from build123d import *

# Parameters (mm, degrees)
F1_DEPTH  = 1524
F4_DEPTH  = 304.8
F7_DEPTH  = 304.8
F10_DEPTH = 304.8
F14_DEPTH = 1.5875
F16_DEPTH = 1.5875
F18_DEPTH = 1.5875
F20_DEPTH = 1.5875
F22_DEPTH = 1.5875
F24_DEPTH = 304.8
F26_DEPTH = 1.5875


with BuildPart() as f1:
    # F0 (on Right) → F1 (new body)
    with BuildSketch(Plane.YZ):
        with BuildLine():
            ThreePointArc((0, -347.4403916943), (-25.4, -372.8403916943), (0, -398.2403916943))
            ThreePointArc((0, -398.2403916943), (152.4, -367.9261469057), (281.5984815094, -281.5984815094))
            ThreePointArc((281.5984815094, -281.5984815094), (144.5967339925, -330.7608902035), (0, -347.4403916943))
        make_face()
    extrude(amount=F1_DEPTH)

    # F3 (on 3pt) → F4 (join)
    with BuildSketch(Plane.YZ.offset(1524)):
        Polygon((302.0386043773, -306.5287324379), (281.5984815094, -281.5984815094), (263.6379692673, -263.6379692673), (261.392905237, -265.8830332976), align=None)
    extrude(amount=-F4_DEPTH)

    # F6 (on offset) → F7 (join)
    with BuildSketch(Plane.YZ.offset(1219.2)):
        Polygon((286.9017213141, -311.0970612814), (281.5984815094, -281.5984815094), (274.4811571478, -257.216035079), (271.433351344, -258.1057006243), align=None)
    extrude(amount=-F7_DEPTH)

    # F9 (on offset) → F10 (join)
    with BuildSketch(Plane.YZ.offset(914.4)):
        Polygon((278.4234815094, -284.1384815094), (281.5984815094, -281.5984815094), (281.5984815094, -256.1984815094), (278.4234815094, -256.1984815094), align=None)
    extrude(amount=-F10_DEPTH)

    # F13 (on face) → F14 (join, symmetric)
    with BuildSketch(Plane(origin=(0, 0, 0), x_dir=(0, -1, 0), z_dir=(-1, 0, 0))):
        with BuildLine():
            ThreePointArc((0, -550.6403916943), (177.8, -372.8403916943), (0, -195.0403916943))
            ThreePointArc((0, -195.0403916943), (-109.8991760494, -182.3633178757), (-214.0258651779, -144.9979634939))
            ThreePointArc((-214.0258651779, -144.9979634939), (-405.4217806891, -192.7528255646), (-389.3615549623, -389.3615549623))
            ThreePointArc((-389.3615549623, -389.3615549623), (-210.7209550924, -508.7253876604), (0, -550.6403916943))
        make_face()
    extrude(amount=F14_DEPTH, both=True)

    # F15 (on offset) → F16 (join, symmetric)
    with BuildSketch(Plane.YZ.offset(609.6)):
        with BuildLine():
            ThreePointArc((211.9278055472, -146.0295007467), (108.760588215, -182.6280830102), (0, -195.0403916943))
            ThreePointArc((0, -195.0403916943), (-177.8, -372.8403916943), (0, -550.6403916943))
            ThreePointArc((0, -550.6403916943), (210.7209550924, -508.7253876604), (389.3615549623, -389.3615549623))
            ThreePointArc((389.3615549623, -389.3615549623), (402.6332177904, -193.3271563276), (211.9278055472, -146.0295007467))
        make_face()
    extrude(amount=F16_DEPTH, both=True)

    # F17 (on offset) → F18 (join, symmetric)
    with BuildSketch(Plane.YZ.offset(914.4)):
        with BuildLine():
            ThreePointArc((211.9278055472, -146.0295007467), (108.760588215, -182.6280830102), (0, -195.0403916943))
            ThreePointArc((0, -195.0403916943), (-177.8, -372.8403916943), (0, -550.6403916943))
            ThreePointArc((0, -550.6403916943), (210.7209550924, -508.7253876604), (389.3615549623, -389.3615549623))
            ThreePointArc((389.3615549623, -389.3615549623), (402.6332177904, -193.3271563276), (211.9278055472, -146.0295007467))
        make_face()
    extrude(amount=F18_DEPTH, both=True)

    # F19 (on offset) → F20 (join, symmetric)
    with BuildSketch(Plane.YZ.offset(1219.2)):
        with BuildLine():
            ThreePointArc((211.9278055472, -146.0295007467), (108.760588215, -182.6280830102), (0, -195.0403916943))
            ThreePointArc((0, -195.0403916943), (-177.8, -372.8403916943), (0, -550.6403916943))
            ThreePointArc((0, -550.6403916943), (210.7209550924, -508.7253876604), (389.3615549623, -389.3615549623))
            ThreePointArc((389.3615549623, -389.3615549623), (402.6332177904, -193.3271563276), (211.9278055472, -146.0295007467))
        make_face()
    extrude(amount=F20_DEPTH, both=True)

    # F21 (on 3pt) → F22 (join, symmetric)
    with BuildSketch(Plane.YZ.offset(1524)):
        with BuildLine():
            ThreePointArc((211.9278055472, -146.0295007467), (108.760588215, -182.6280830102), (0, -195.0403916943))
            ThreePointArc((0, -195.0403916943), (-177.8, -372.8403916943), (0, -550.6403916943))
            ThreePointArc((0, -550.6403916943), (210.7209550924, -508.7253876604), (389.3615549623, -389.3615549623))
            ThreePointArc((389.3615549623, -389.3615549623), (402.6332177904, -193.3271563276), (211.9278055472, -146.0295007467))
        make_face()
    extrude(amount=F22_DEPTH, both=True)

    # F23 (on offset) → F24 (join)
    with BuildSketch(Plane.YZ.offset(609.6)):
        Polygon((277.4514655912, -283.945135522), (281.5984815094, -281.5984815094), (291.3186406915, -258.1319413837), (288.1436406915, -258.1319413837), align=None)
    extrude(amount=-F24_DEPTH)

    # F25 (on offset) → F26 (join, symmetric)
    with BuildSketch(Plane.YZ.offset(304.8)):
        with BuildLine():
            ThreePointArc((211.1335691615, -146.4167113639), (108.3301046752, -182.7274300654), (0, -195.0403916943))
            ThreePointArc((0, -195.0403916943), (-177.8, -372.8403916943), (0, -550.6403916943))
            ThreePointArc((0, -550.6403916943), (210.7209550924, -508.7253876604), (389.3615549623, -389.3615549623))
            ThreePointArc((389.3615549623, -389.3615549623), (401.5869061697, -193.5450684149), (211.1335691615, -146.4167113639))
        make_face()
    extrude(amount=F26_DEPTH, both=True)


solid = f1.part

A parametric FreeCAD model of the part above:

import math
import FreeCAD as App
import Part
import Sketcher

V = App.Vector
Q = App.Units.Quantity

doc = App.newDocument("Part")
params = doc.addObject("Spreadsheet::Sheet", "Params")
for row, (alias, value) in enumerate([
    ("sketch1_radius", "1 in"),
    ("pad1_length", "60 in"),
    ("sketch2_length", "1 in"),
    ("sketch2_length2", "0.125 in"),
    ("pad2_length", "12 in"),
    ("sketch3_length", "1 in"),
    ("sketch3_length2", "0.125 in"),
    ("pad3_length", "12 in"),
    ("sketch4_height", "1 in"),
    ("sketch4_height2", "1.1 in"),
    ("sketch4_width", "0.125 in"),
    ("pad4_length", "12 in"),
    ("sketch5_radius", "7 in"),
    ("sketch5_radius2", "6 in"),
    ("pad5_length", "0.125 in"),
    ("sketch6_radius", "7 in"),
    ("pad6_length", "0.125 in"),
    ("sketch7_radius", "7 in"),
    ("pad7_length", "0.125 in"),
    ("sketch8_radius", "7 in"),
    ("pad8_length", "0.125 in"),
    ("sketch9_radius", "7 in"),
    ("pad9_length", "0.125 in"),
    ("sketch10_length", "1 in"),
    ("sketch10_length2", "1.1 in"),
    ("sketch10_width", "0.125 in"),
    ("pad10_length", "12 in"),
    ("sketch11_radius", "7 in"),
    ("pad11_length", "0.125 in"),
], start=1):
    params.set(f"A{row}", alias)
    params.set(f"B{row}", "=" + value)
    params.setAlias(f"B{row}", alias)

body = doc.addObject("PartDesign::Body", "Body")

sketch1 = body.newObject("Sketcher::SketchObject", "Sketch")
sketch1.AttachmentSupport = (doc.getObject("YZ_Plane"), [""])
sketch1.MapMode = "FlatFace"
sketch1.addGeometry([
    Part.ArcOfCircle(Part.Circle(V(0, -373, 0), V(0, 0, 1), 25), math.radians(90), math.radians(270)),
    Part.ArcOfCircle(Part.Circle(V(0, 0, 0), V(0, 0, 1), 398), math.radians(-90), math.radians(-45)),
    Part.ArcOfCircle(Part.Circle(V(0, 288, 0), V(0, 0, 1), 635), math.radians(-90), math.radians(-64)),
], False)
sketch1.addConstraint([
    Sketcher.Constraint("Tangent", 0, 2, 1, 1),
    Sketcher.Constraint("Coincident", 1, 2, 2, 2),
    Sketcher.Constraint("Tangent", 2, 1, 0, 1),
    Sketcher.Constraint("Coincident", 1, 3, -1, 1),
    Sketcher.Constraint("PointOnObject", 0, 3, -2),
    Sketcher.Constraint("PointOnObject", 2, 3, -2),
    Sketcher.Constraint("Radius", 0, Q("1 in")),
    Sketcher.Constraint("Radius", 1, Q("398.240392 mm")),
    Sketcher.Constraint("Radius", 2, Q("635.103551 mm")),
])
sketch1.setExpression("Constraints[6]", "Params.sketch1_radius")
pad1 = body.newObject("PartDesign::Pad", "Pad")
pad1.Profile = sketch1
pad1.setExpression("Length", "Params.pad1_length")

sketch2 = body.newObject("Sketcher::SketchObject", "Sketch001")
sketch2.AttachmentSupport = (doc.getObject("YZ_Plane"), [""])
sketch2.MapMode = "FlatFace"
sketch2.AttachmentOffset = App.Placement(V(0, 0, 60 * 25.4), App.Rotation())
sketch2.addGeometry([
    Part.LineSegment(V(302, -306.5, 0), V(281.6, -281.6, 0)),
    Part.LineSegment(V(281.6, -281.6, 0), V(263.6, -263.6, 0)),
    Part.LineSegment(V(263.6, -263.6, 0), V(261.4, -265.9, 0)),
    Part.LineSegment(V(261.4, -265.9, 0), V(302, -306.5, 0)),
], False)
sketch2.addConstraint([
    Sketcher.Constraint("Coincident", 0, 2, 1, 1),
    Sketcher.Constraint("Coincident", 1, 2, 2, 1),
    Sketcher.Constraint("Coincident", 2, 2, 3, 1),
    Sketcher.Constraint("Coincident", 3, 2, 0, 1),
    Sketcher.Constraint("Perpendicular", 1, 2),
    Sketcher.Constraint("Perpendicular", 2, 3),
    Sketcher.Constraint("Distance", 1, Q("1 in")),
    Sketcher.Constraint("Angle", 1, Q("135 deg")),
    Sketcher.Constraint("Distance", 2, Q("0.125 in")),
    Sketcher.Constraint("Distance", 3, Q("57.481699 mm")),
    Sketcher.Constraint("DistanceX", -1, 1, 0, 2, Q("281.598482 mm")),
    Sketcher.Constraint("DistanceY", 0, 2, -1, 1, Q("281.598482 mm")),
])
sketch2.setExpression("Constraints[6]", "Params.sketch2_length")
sketch2.setExpression("Constraints[8]", "Params.sketch2_length2")
pad2 = body.newObject("PartDesign::Pad", "Pad001")
pad2.Profile = sketch2
pad2.setExpression("Length", "Params.pad2_length")
pad2.Reversed = True

sketch3 = body.newObject("Sketcher::SketchObject", "Sketch002")
sketch3.AttachmentSupport = (doc.getObject("YZ_Plane"), [""])
sketch3.MapMode = "FlatFace"
sketch3.AttachmentOffset = App.Placement(V(0, 0, 48 * 25.4), App.Rotation())
sketch3.addGeometry([
    Part.LineSegment(V(286.9, -311.1, 0), V(281.6, -281.6, 0)),
    Part.LineSegment(V(281.6, -281.6, 0), V(274.5, -257.2, 0)),
    Part.LineSegment(V(274.5, -257.2, 0), V(271.4, -258.1, 0)),
    Part.LineSegment(V(271.4, -258.1, 0), V(286.9, -311.1, 0)),
], False)
sketch3.addConstraint([
    Sketcher.Constraint("Coincident", 0, 2, 1, 1),
    Sketcher.Constraint("Coincident", 1, 2, 2, 1),
    Sketcher.Constraint("Coincident", 2, 2, 3, 1),
    Sketcher.Constraint("Coincident", 3, 2, 0, 1),
    Sketcher.Constraint("Perpendicular", 1, 2),
    Sketcher.Constraint("Perpendicular", 2, 3),
    Sketcher.Constraint("Distance", 1, Q("1 in")),
    Sketcher.Constraint("Distance", 2, Q("0.125 in")),
    Sketcher.Constraint("DistanceY", 2, 2, -1, 1, Q("258.105701 mm")),
    Sketcher.Constraint("Distance", 3, Q("55.202851 mm")),
    Sketcher.Constraint("DistanceX", -1, 1, 0, 2, Q("281.598482 mm")),
    Sketcher.Constraint("DistanceY", 0, 2, -1, 1, Q("281.598482 mm")),
])
sketch3.setExpression("Constraints[6]", "Params.sketch3_length")
sketch3.setExpression("Constraints[7]", "Params.sketch3_length2")
pad3 = body.newObject("PartDesign::Pad", "Pad002")
pad3.Profile = sketch3
pad3.setExpression("Length", "Params.pad3_length")
pad3.Reversed = True

sketch4 = body.newObject("Sketcher::SketchObject", "Sketch003")
sketch4.AttachmentSupport = (doc.getObject("YZ_Plane"), [""])
sketch4.MapMode = "FlatFace"
sketch4.AttachmentOffset = App.Placement(V(0, 0, 36 * 25.4), App.Rotation())
sketch4.addGeometry([
    Part.LineSegment(V(278.4, -284.1, 0), V(281.6, -281.6, 0)),
    Part.LineSegment(V(281.6, -281.6, 0), V(281.6, -256.2, 0)),
    Part.LineSegment(V(281.6, -256.2, 0), V(278.4, -256.2, 0)),
    Part.LineSegment(V(278.4, -256.2, 0), V(278.4, -284.1, 0)),
], False)
sketch4.addConstraint([
    Sketcher.Constraint("Coincident", 0, 2, 1, 1),
    Sketcher.Constraint("Coincident", 1, 2, 2, 1),
    Sketcher.Constraint("Coincident", 2, 2, 3, 1),
    Sketcher.Constraint("Coincident", 3, 2, 0, 1),
    Sketcher.Constraint("Vertical", 1),
    Sketcher.Constraint("Horizontal", 2),
    Sketcher.Constraint("Vertical", 3),
    Sketcher.Constraint("DistanceY", 1, 1, 1, 2, Q("1 in")),
    Sketcher.Constraint("DistanceY", 3, 2, 3, 1, Q("1.1 in")),
    Sketcher.Constraint("DistanceX", 2, 2, 2, 1, Q("0.125 in")),
    Sketcher.Constraint("DistanceX", -1, 1, 0, 2, Q("281.598482 mm")),
    Sketcher.Constraint("DistanceY", 0, 2, -1, 1, Q("281.598482 mm")),
])
sketch4.setExpression("Constraints[7]", "Params.sketch4_height")
sketch4.setExpression("Constraints[8]", "Params.sketch4_height2")
sketch4.setExpression("Constraints[9]", "Params.sketch4_width")
pad4 = body.newObject("PartDesign::Pad", "Pad003")
pad4.Profile = sketch4
pad4.setExpression("Length", "Params.pad4_length")
pad4.Reversed = True

sketch5 = body.newObject("Sketcher::SketchObject", "Sketch004")
sketch5.AttachmentSupport = (doc.getObject("YZ_Plane"), [""])
sketch5.MapMode = "FlatFace"
sketch5.addGeometry([
    Part.ArcOfCircle(Part.Circle(V(0, -373, 0), V(0, 0, 1), 178), math.radians(90), math.radians(270)),
    Part.ArcOfCircle(Part.Circle(V(0, 288, 0), V(0, 0, 1), 483), math.radians(-90), math.radians(-64)),
    Part.ArcOfCircle(Part.Circle(V(282, -282, 0), V(0, 0, 1), 152), math.radians(-45), math.radians(116)),
    Part.ArcOfCircle(Part.Circle(V(0, 0, 0), V(0, 0, 1), 551), math.radians(-90), math.radians(-45)),
], False)
sketch5.addConstraint([
    Sketcher.Constraint("Tangent", 0, 1, 1, 1),
    Sketcher.Constraint("Tangent", 1, 2, 2, 2),
    Sketcher.Constraint("Tangent", 2, 1, 3, 2),
    Sketcher.Constraint("Tangent", 3, 1, 0, 2),
    Sketcher.Constraint("Coincident", 3, 3, -1, 1),
    Sketcher.Constraint("PointOnObject", 0, 3, -2),
    Sketcher.Constraint("PointOnObject", 1, 3, -2),
    Sketcher.Constraint("Radius", 0, Q("7 in")),
    Sketcher.Constraint("Radius", 2, Q("6 in")),
    Sketcher.Constraint("Radius", 1, Q("482.703551 mm")),
    Sketcher.Constraint("Radius", 3, Q("550.640392 mm")),
])
sketch5.setExpression("Constraints[7]", "Params.sketch5_radius")
sketch5.setExpression("Constraints[8]", "Params.sketch5_radius2")
pad5 = body.newObject("PartDesign::Pad", "Pad004")
pad5.Profile = sketch5
pad5.setExpression("Length", "Params.pad5_length")
pad5.Midplane = True

sketch6 = body.newObject("Sketcher::SketchObject", "Sketch005")
sketch6.AttachmentSupport = (doc.getObject("YZ_Plane"), [""])
sketch6.MapMode = "FlatFace"
sketch6.AttachmentOffset = App.Placement(V(0, 0, 24 * 25.4), App.Rotation())
sketch6.addGeometry([
    Part.ArcOfCircle(Part.Circle(V(0, 288, 0), V(0, 0, 1), 483), math.radians(-90), math.radians(-64)),
    Part.ArcOfCircle(Part.Circle(V(0, -373, 0), V(0, 0, 1), 178), math.radians(90), math.radians(270)),
    Part.ArcOfCircle(Part.Circle(V(0, 0, 0), V(0, 0, 1), 551), math.radians(-90), math.radians(-45)),
    Part.ArcOfCircle(Part.Circle(V(279, -283, 0), V(0, 0, 1), 153), math.radians(-44), math.radians(116)),
], False)
sketch6.addConstraint([
    Sketcher.Constraint("Tangent", 0, 1, 1, 1),
    Sketcher.Constraint("Tangent", 1, 2, 2, 1),
    Sketcher.Constraint("Coincident", 2, 2, 3, 1),
    Sketcher.Constraint("Tangent", 3, 2, 0, 2),
    Sketcher.Constraint("Coincident", 2, 3, -1, 1),
    Sketcher.Constraint("PointOnObject", 0, 3, -2),
    Sketcher.Constraint("PointOnObject", 1, 3, -2),
    Sketcher.Constraint("Radius", 1, Q("7 in")),
    Sketcher.Constraint("Radius", 0, Q("482.703551 mm")),
    Sketcher.Constraint("Radius", 2, Q("550.640392 mm")),
    Sketcher.Constraint("Radius", 3, Q("152.92592 mm")),
    Sketcher.Constraint("DistanceY", 3, 2, -1, 1, Q("146.029501 mm")),
])
sketch6.setExpression("Constraints[7]", "Params.sketch6_radius")
pad6 = body.newObject("PartDesign::Pad", "Pad005")
pad6.Profile = sketch6
pad6.setExpression("Length", "Params.pad6_length")
pad6.Midplane = True

sketch7 = body.newObject("Sketcher::SketchObject", "Sketch006")
sketch7.AttachmentSupport = (doc.getObject("YZ_Plane"), [""])
sketch7.MapMode = "FlatFace"
sketch7.AttachmentOffset = App.Placement(V(0, 0, 36 * 25.4), App.Rotation())
sketch7.addGeometry([
    Part.ArcOfCircle(Part.Circle(V(0, 288, 0), V(0, 0, 1), 483), math.radians(-90), math.radians(-64)),
    Part.ArcOfCircle(Part.Circle(V(0, -373, 0), V(0, 0, 1), 178), math.radians(90), math.radians(270)),
    Part.ArcOfCircle(Part.Circle(V(0, 0, 0), V(0, 0, 1), 551), math.radians(-90), math.radians(-45)),
    Part.ArcOfCircle(Part.Circle(V(279, -283, 0), V(0, 0, 1), 153), math.radians(-44), math.radians(116)),
], False)
sketch7.addConstraint([
    Sketcher.Constraint("Tangent", 0, 1, 1, 1),
    Sketcher.Constraint("Tangent", 1, 2, 2, 1),
    Sketcher.Constraint("Coincident", 2, 2, 3, 1),
    Sketcher.Constraint("Tangent", 3, 2, 0, 2),
    Sketcher.Constraint("Coincident", 2, 3, -1, 1),
    Sketcher.Constraint("PointOnObject", 0, 3, -2),
    Sketcher.Constraint("PointOnObject", 1, 3, -2),
    Sketcher.Constraint("Radius", 1, Q("7 in")),
    Sketcher.Constraint("Radius", 0, Q("482.703551 mm")),
    Sketcher.Constraint("Radius", 2, Q("550.640392 mm")),
    Sketcher.Constraint("Radius", 3, Q("152.92592 mm")),
    Sketcher.Constraint("DistanceY", 3, 2, -1, 1, Q("146.029501 mm")),
])
sketch7.setExpression("Constraints[7]", "Params.sketch7_radius")
pad7 = body.newObject("PartDesign::Pad", "Pad006")
pad7.Profile = sketch7
pad7.setExpression("Length", "Params.pad7_length")
pad7.Midplane = True

sketch8 = body.newObject("Sketcher::SketchObject", "Sketch007")
sketch8.AttachmentSupport = (doc.getObject("YZ_Plane"), [""])
sketch8.MapMode = "FlatFace"
sketch8.AttachmentOffset = App.Placement(V(0, 0, 48 * 25.4), App.Rotation())
sketch8.addGeometry([
    Part.ArcOfCircle(Part.Circle(V(0, 288, 0), V(0, 0, 1), 483), math.radians(-90), math.radians(-64)),
    Part.ArcOfCircle(Part.Circle(V(0, -373, 0), V(0, 0, 1), 178), math.radians(90), math.radians(270)),
    Part.ArcOfCircle(Part.Circle(V(0, 0, 0), V(0, 0, 1), 551), math.radians(-90), math.radians(-45)),
    Part.ArcOfCircle(Part.Circle(V(279, -283, 0), V(0, 0, 1), 153), math.radians(-44), math.radians(116)),
], False)
sketch8.addConstraint([
    Sketcher.Constraint("Tangent", 0, 1, 1, 1),
    Sketcher.Constraint("Tangent", 1, 2, 2, 1),
    Sketcher.Constraint("Coincident", 2, 2, 3, 1),
    Sketcher.Constraint("Tangent", 3, 2, 0, 2),
    Sketcher.Constraint("Coincident", 2, 3, -1, 1),
    Sketcher.Constraint("PointOnObject", 0, 3, -2),
    Sketcher.Constraint("PointOnObject", 1, 3, -2),
    Sketcher.Constraint("Radius", 1, Q("7 in")),
    Sketcher.Constraint("Radius", 0, Q("482.703551 mm")),
    Sketcher.Constraint("Radius", 2, Q("550.640392 mm")),
    Sketcher.Constraint("Radius", 3, Q("152.92592 mm")),
    Sketcher.Constraint("DistanceY", 3, 2, -1, 1, Q("146.029501 mm")),
])
sketch8.setExpression("Constraints[7]", "Params.sketch8_radius")
pad8 = body.newObject("PartDesign::Pad", "Pad007")
pad8.Profile = sketch8
pad8.setExpression("Length", "Params.pad8_length")
pad8.Midplane = True

sketch9 = body.newObject("Sketcher::SketchObject", "Sketch008")
sketch9.AttachmentSupport = (doc.getObject("YZ_Plane"), [""])
sketch9.MapMode = "FlatFace"
sketch9.AttachmentOffset = App.Placement(V(0, 0, 60 * 25.4), App.Rotation())
sketch9.addGeometry([
    Part.ArcOfCircle(Part.Circle(V(0, 288, 0), V(0, 0, 1), 483), math.radians(-90), math.radians(-64)),
    Part.ArcOfCircle(Part.Circle(V(0, -373, 0), V(0, 0, 1), 178), math.radians(90), math.radians(270)),
    Part.ArcOfCircle(Part.Circle(V(0, 0, 0), V(0, 0, 1), 551), math.radians(-90), math.radians(-45)),
    Part.ArcOfCircle(Part.Circle(V(279, -283, 0), V(0, 0, 1), 153), math.radians(-44), math.radians(116)),
], False)
sketch9.addConstraint([
    Sketcher.Constraint("Tangent", 0, 1, 1, 1),
    Sketcher.Constraint("Tangent", 1, 2, 2, 1),
    Sketcher.Constraint("Coincident", 2, 2, 3, 1),
    Sketcher.Constraint("Tangent", 3, 2, 0, 2),
    Sketcher.Constraint("Coincident", 2, 3, -1, 1),
    Sketcher.Constraint("PointOnObject", 0, 3, -2),
    Sketcher.Constraint("PointOnObject", 1, 3, -2),
    Sketcher.Constraint("Radius", 1, Q("7 in")),
    Sketcher.Constraint("Radius", 0, Q("482.703551 mm")),
    Sketcher.Constraint("Radius", 2, Q("550.640392 mm")),
    Sketcher.Constraint("Radius", 3, Q("152.92592 mm")),
    Sketcher.Constraint("DistanceY", 3, 2, -1, 1, Q("146.029501 mm")),
])
sketch9.setExpression("Constraints[7]", "Params.sketch9_radius")
pad9 = body.newObject("PartDesign::Pad", "Pad008")
pad9.Profile = sketch9
pad9.setExpression("Length", "Params.pad9_length")
pad9.Midplane = True

sketch10 = body.newObject("Sketcher::SketchObject", "Sketch009")
sketch10.AttachmentSupport = (doc.getObject("YZ_Plane"), [""])
sketch10.MapMode = "FlatFace"
sketch10.AttachmentOffset = App.Placement(V(0, 0, 24 * 25.4), App.Rotation())
sketch10.addGeometry([
    Part.LineSegment(V(277.5, -283.9, 0), V(281.6, -281.6, 0)),
    Part.LineSegment(V(281.6, -281.6, 0), V(291.3, -258.1, 0)),
    Part.LineSegment(V(291.3, -258.1, 0), V(288.1, -258.1, 0)),
    Part.LineSegment(V(288.1, -258.1, 0), V(277.5, -283.9, 0)),
], False)
sketch10.addConstraint([
    Sketcher.Constraint("Coincident", 0, 2, 1, 1),
    Sketcher.Constraint("Coincident", 1, 2, 2, 1),
    Sketcher.Constraint("Coincident", 2, 2, 3, 1),
    Sketcher.Constraint("Coincident", 3, 2, 0, 1),
    Sketcher.Constraint("Horizontal", 2),
    Sketcher.Constraint("Parallel", 1, 3),
    Sketcher.Constraint("Distance", 1, Q("1 in")),
    Sketcher.Constraint("Distance", 3, Q("1.1 in")),
    Sketcher.Constraint("Angle", 1, Q("67.5 deg")),
    Sketcher.Constraint("DistanceX", 2, 2, 2, 1, Q("0.125 in")),
    Sketcher.Constraint("DistanceX", -1, 1, 0, 2, Q("281.598482 mm")),
    Sketcher.Constraint("DistanceY", 0, 2, -1, 1, Q("281.598482 mm")),
])
sketch10.setExpression("Constraints[6]", "Params.sketch10_length")
sketch10.setExpression("Constraints[7]", "Params.sketch10_length2")
sketch10.setExpression("Constraints[9]", "Params.sketch10_width")
pad10 = body.newObject("PartDesign::Pad", "Pad009")
pad10.Profile = sketch10
pad10.setExpression("Length", "Params.pad10_length")
pad10.Reversed = True

sketch11 = body.newObject("Sketcher::SketchObject", "Sketch010")
sketch11.AttachmentSupport = (doc.getObject("YZ_Plane"), [""])
sketch11.MapMode = "FlatFace"
sketch11.AttachmentOffset = App.Placement(V(0, 0, 12 * 25.4), App.Rotation())
sketch11.addGeometry([
    Part.ArcOfCircle(Part.Circle(V(0, 287.663159, 0), V(0, 0, 1), 482.703551), math.radians(-90), math.radians(-64.062019)),
    Part.ArcOfCircle(Part.Circle(V(0, -372.840392, 0), V(0, 0, 1), 177.8), math.radians(90), math.radians(270)),
    Part.ArcOfCircle(Part.Circle(V(0, 0, 0), V(0, 0, 1), 550.640392), math.radians(-90), math.radians(-45)),
    Part.ArcOfCircle(Part.Circle(V(278.114566, -284.126231, 0), V(0, 0, 1), 153.135123), math.radians(-43.409318), math.radians(115.937981)),
], False)
sketch11.addConstraint([
    Sketcher.Constraint("Tangent", 0, 1, 1, 1),
    Sketcher.Constraint("Tangent", 1, 2, 2, 1),
    Sketcher.Constraint("Coincident", 2, 2, 3, 1),
    Sketcher.Constraint("Tangent", 3, 2, 0, 2),
    Sketcher.Constraint("Coincident", 2, 3, -1, 1),
    Sketcher.Constraint("PointOnObject", 0, 3, -2),
    Sketcher.Constraint("PointOnObject", 1, 3, -2),
    Sketcher.Constraint("Radius", 1, Q("7 in")),
    Sketcher.Constraint("Radius", 0, Q("482.703551 mm")),
    Sketcher.Constraint("Radius", 2, Q("550.640392 mm")),
    Sketcher.Constraint("Radius", 3, Q("153.135123 mm")),
    Sketcher.Constraint("DistanceY", 3, 3, -1, 1, Q("284.126231 mm")),
])
sketch11.setExpression("Constraints[7]", "Params.sketch11_radius")
pad11 = body.newObject("PartDesign::Pad", "Pad010")
pad11.Profile = sketch11
pad11.setExpression("Length", "Params.pad11_length")
pad11.Midplane = True

doc.recompute()
